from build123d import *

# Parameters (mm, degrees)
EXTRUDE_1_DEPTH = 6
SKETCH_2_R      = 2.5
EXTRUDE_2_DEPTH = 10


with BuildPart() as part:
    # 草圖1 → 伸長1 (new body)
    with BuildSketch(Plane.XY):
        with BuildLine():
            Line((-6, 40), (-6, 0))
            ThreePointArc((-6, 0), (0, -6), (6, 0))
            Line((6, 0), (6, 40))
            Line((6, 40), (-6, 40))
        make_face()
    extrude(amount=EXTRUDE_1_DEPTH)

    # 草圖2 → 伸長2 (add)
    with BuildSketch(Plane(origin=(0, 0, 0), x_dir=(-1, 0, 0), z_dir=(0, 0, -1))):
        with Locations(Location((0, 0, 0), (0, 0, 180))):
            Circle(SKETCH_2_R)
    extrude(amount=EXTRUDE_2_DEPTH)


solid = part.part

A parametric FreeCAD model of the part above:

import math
import FreeCAD as App
import Part
import Sketcher
from FreeCAD import Vector
Q = App.Units.Quantity

doc = App.newDocument("Part")
body = doc.addObject("PartDesign::Body", "Body")

sketch1 = body.newObject("Sketcher::SketchObject", "Sketch")
sketch1.AttachmentSupport = (doc.getObject("XY_Plane"), [""])
sketch1.MapMode = "FlatFace"
sketch1.addGeometry(Part.LineSegment(Vector(-6, 40, 0), Vector(-6, 0, 0)), False)
sketch1.addGeometry(Part.ArcOfCircle(Part.Circle(Vector(0, 0, 0), Vector(0, 0, 1), 6), math.radians(180), math.radians(360)), False)
sketch1.addGeometry(Part.LineSegment(Vector(6, 0, 0), Vector(6, 40, 0)), False)
sketch1.addGeometry(Part.LineSegment(Vector(6, 40, 0), Vector(-6, 40, 0)), False)
sketch1.addConstraint(Sketcher.Constraint("Tangent", 0, 2, 1, 1))
sketch1.addConstraint(Sketcher.Constraint("Tangent", 1, 2, 2, 1))
sketch1.addConstraint(Sketcher.Constraint("Coincident", 2, 2, 3, 1))
sketch1.addConstraint(Sketcher.Constraint("Coincident", 3, 2, 0, 1))
sketch1.addConstraint(Sketcher.Constraint("Vertical", 0))
sketch1.addConstraint(Sketcher.Constraint("Vertical", 2))
sketch1.addConstraint(Sketcher.Constraint("Horizontal", 3))
sketch1.addConstraint(Sketcher.Constraint("Coincident", 1, 3, -1, 1))
sketch1.addConstraint(Sketcher.Constraint("Radius", 1, Q("6 mm")))
sketch1.addConstraint(Sketcher.Constraint("DistanceY", 0, 2, 0, 1, Q("40 mm")))
pad1 = body.newObject("PartDesign::Pad", "Pad")
pad1.Profile = sketch1
pad1.Length = 6

sketch2 = body.newObject("Sketcher::SketchObject", "Sketch001")
sketch2.AttachmentSupport = (doc.getObject("XY_Plane"), [""])
sketch2.MapMode = "FlatFace"
sketch2.addGeometry(Part.Circle(Vector(0, 0, 0), Vector(0, 0, 1), 2.5), False)
sketch2.addConstraint(Sketcher.Constraint("Coincident", 0, 3, -1, 1))
sketch2.addConstraint(Sketcher.Constraint("Diameter", 0, Q("5 mm")))
pad2 = body.newObject("PartDesign::Pad", "Pad001")
pad2.Profile = sketch2
pad2.Length = 10
pad2.Reversed = True

doc.recompute()
